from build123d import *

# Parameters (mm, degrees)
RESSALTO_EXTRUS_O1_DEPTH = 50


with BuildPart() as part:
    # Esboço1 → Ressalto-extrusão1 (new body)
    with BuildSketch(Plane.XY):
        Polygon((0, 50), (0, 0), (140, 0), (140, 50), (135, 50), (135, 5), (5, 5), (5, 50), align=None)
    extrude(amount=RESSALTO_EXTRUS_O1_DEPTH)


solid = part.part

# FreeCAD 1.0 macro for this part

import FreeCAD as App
import Part
import Sketcher
Q = App.Units.Quantity

doc = App.newDocument("Part")
params = doc.addObject("Spreadsheet::Sheet", "Params")
for row, (alias, value) in enumerate([
    ("sketch1_width", "140 mm"),
    ("sketch1_width2", "5 mm"),
    ("sketch1_height", "50 mm"),
    ("sketch1_height2", "45 mm"),
    ("pad1_length", "50 mm"),
], start=1):
    params.set(f"A{row}", alias)
    params.set(f"B{row}", "=" + value)
    params.setAlias(f"B{row}", alias)

body = doc.addObject("PartDesign::Body", "Body")

sketch1 = body.newObject("Sketcher::SketchObject", "Sketch")
sketch1.AttachmentSupport = (doc.getObject("XY_Plane"), [""])
sketch1.MapMode = "FlatFace"
sketch1.addGeometry([
    Part.LineSegment(App.Vector(0, 50, 0), App.Vector(0, 0, 0)),
    Part.LineSegment(App.Vector(0, 0, 0), App.Vector(140, 0, 0)),
    Part.LineSegment(App.Vector(140, 0, 0), App.Vector(140, 50, 0)),
    Part.LineSegment(App.Vector(140, 50, 0), App.Vector(135, 50, 0)),
    Part.LineSegment(App.Vector(135, 50, 0), App.Vector(135, 5, 0)),
    Part.LineSegment(App.Vector(135, 5, 0), App.Vector(5, 5, 0)),
    Part.LineSegment(App.Vector(5, 5, 0), App.Vector(5, 50, 0)),
    Part.LineSegment(App.Vector(5, 50, 0), App.Vector(0, 50, 0)),
], False)
sketch1.addConstraint([
    Sketcher.Constraint("Coincident", 0, 2, 1, 1),
    Sketcher.Constraint("Coincident", 1, 2, 2, 1),
    Sketcher.Constraint("Coincident", 2, 2, 3, 1),
    Sketcher.Constraint("Coincident", 3, 2, 4, 1),
    Sketcher.Constraint("Coincident", 4, 2, 5, 1),
    Sketcher.Constraint("Coincident", 5, 2, 6, 1),
    Sketcher.Constraint("Coincident", 6, 2, 7, 1),
    Sketcher.Constraint("Coincident", 7, 2, 0, 1),
    Sketcher.Constraint("Vertical", 0),
    Sketcher.Constraint("Horizontal", 1),
    Sketcher.Constraint("Vertical", 2),
    Sketcher.Constraint("Horizontal", 3),
    Sketcher.Constraint("Vertical", 4),
    Sketcher.Constraint("Horizontal", 5),
    Sketcher.Constraint("Vertical", 6),
    Sketcher.Constraint("Horizontal", 7),
    Sketcher.Constraint("Coincident", 0, 2, -1, 1),
    Sketcher.Constraint("Horizontal", 3, 2, 6, 2),
    Sketcher.Constraint("Equal", 3, 7),
    Sketcher.Constraint("DistanceX", 1, 1, 1, 2, Q("140 mm")),
    Sketcher.Constraint("DistanceX", 3, 2, 3, 1, Q("5 mm")),
    Sketcher.Constraint("DistanceY", 0, 2, 0, 1, Q("50 mm")),
    Sketcher.Constraint("DistanceY", 4, 2, 4, 1, Q("45 mm")),
])
sketch1.setExpression("Constraints[19]", "Params.sketch1_width")
sketch1.setExpression("Constraints[20]", "Params.sketch1_width2")
sketch1.setExpression("Constraints[21]", "Params.sketch1_height")
sketch1.setExpression("Constraints[22]", "Params.sketch1_height2")
pad1 = body.newObject("PartDesign::Pad", "Pad")
pad1.Profile = sketch1
pad1.setExpression("Length", "Params.pad1_length")

doc.recompute()
